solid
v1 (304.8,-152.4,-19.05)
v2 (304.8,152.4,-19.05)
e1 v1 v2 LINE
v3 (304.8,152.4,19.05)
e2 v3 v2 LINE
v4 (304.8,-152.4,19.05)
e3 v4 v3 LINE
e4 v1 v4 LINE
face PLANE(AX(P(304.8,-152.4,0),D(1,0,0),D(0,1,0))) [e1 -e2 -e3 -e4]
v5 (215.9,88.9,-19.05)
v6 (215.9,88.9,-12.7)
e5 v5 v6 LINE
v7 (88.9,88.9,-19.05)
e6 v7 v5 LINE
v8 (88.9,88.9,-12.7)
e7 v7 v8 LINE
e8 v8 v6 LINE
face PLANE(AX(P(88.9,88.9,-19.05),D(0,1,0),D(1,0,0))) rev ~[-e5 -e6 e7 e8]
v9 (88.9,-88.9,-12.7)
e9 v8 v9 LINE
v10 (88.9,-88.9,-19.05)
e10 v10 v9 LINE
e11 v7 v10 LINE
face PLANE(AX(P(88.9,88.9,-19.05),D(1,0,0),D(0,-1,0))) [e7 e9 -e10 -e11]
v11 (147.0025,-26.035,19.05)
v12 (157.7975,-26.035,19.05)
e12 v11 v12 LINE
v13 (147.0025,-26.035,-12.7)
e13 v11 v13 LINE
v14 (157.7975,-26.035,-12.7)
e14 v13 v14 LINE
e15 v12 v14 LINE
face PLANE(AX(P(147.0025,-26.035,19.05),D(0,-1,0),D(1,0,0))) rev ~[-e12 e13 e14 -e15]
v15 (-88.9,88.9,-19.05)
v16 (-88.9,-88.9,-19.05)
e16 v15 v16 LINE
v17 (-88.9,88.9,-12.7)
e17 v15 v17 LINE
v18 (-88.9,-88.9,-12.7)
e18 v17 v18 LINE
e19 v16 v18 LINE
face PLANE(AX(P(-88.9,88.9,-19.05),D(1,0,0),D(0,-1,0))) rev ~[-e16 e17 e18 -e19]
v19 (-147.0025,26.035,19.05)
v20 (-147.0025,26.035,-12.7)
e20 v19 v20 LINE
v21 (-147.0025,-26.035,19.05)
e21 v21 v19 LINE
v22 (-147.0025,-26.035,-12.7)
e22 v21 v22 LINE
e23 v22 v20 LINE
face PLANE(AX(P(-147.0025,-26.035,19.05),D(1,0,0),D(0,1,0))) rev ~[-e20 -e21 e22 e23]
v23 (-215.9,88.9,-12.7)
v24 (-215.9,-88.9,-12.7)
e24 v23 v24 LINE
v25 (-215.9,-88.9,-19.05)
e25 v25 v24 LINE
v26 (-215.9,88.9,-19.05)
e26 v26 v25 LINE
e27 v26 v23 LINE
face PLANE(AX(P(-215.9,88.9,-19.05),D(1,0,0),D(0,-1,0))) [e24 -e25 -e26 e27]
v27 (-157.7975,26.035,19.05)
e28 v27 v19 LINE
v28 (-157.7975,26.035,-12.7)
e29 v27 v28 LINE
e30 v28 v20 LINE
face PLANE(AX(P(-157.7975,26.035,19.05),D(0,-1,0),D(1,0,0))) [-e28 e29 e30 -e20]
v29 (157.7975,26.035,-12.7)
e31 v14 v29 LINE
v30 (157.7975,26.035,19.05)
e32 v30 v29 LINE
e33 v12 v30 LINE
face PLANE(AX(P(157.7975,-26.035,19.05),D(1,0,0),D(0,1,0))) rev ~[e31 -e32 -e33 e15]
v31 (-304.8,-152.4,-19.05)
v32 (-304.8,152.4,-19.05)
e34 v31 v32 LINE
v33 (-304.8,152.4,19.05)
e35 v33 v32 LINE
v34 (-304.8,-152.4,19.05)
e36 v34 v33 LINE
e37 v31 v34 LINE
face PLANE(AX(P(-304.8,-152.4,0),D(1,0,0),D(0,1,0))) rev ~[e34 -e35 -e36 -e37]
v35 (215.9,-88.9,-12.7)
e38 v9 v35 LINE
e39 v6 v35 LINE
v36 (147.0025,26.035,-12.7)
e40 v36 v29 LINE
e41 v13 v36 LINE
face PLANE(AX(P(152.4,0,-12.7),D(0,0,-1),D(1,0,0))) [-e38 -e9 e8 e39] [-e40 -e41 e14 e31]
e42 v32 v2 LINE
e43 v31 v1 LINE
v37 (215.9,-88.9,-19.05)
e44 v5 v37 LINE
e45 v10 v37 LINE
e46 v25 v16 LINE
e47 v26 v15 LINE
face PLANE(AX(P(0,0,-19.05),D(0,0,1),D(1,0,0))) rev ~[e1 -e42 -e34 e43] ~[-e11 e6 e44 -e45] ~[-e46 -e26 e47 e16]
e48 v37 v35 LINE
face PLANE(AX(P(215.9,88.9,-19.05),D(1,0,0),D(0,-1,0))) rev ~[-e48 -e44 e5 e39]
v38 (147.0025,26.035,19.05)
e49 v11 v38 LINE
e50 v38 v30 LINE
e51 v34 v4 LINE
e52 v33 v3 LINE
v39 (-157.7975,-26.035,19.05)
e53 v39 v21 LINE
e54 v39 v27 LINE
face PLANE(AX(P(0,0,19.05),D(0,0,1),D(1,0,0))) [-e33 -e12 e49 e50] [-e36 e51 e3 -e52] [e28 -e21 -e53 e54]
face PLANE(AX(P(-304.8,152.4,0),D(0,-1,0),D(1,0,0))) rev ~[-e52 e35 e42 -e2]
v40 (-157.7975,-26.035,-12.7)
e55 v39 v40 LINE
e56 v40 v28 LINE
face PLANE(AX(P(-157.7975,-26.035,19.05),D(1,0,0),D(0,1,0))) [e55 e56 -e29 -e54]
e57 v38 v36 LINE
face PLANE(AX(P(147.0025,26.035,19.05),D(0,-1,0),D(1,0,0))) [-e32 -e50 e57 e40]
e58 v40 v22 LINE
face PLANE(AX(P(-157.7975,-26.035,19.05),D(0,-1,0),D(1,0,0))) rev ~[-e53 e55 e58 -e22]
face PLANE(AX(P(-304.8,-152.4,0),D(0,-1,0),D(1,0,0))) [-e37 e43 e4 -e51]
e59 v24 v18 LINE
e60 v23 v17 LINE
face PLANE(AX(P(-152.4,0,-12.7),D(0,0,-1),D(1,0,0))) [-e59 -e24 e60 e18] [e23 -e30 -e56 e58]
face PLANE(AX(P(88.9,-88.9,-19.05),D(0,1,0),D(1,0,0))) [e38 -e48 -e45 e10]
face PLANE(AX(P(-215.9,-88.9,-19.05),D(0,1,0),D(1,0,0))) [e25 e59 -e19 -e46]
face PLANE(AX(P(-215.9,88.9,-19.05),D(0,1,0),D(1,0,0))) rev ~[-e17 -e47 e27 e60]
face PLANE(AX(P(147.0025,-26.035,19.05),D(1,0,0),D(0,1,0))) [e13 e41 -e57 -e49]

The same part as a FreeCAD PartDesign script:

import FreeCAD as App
import Part
import Sketcher
Q = App.Units.Quantity

doc = App.newDocument("Part")
params = doc.addObject("Spreadsheet::Sheet", "Params")
for row, (alias, value) in enumerate([
    ("sketch1_width", "24 in"),
    ("sketch1_height", "12 in"),
    ("pad1_length", "1.5 in"),
    ("sketch2_height", "2.05 in"),
    ("sketch2_width", "0.425 in"),
    ("sketch3_width", "5 in"),
    ("sketch3_height", "7 in"),
    ("pocket2_length", "0.25 in"),
], start=1):
    params.set(f"A{row}", alias)
    params.set(f"B{row}", "=" + value)
    params.setAlias(f"B{row}", alias)

body = doc.addObject("PartDesign::Body", "Body")

# Sketch on XY plane
sketch1 = doc.addObject("Sketcher::SketchObject", "Sketch")
body.addObject(sketch1)
sketch1.AttachmentSupport = (doc.XY_Plane, [""])
sketch1.MapMode = "FlatFace"
sketch1.addGeometry(Part.LineSegment(App.Vector(-305, 152, 0), App.Vector(-305, -152, 0)), False)
sketch1.addGeometry(Part.LineSegment(App.Vector(-305, -152, 0), App.Vector(305, -152, 0)), False)
sketch1.addGeometry(Part.LineSegment(App.Vector(305, -152, 0), App.Vector(305, 152, 0)), False)
sketch1.addGeometry(Part.LineSegment(App.Vector(305, 152, 0), App.Vector(-305, 152, 0)), False)
sketch1.addConstraint(Sketcher.Constraint("Coincident", 0, 2, 1, 1))
sketch1.addConstraint(Sketcher.Constraint("Coincident", 1, 2, 2, 1))
sketch1.addConstraint(Sketcher.Constraint("Coincident", 2, 2, 3, 1))
sketch1.addConstraint(Sketcher.Constraint("Coincident", 3, 2, 0, 1))
sketch1.addConstraint(Sketcher.Constraint("Vertical", 0))
sketch1.addConstraint(Sketcher.Constraint("Horizontal", 1))
sketch1.addConstraint(Sketcher.Constraint("Vertical", 2))
sketch1.addConstraint(Sketcher.Constraint("Horizontal", 3))
sketch1.addConstraint(Sketcher.Constraint("Symmetric", 0, 2, 2, 2, -1, 1))
sketch1.addConstraint(Sketcher.Constraint("DistanceX", 1, 1, 1, 2, Q("24 in")))
sketch1.addConstraint(Sketcher.Constraint("DistanceY", 0, 2, 0, 1, Q("12 in")))
sketch1.setExpression("Constraints[9]", "Params.sketch1_width")
sketch1.setExpression("Constraints[10]", "Params.sketch1_height")
pad1 = doc.addObject("PartDesign::Pad", "Pad")
body.addObject(pad1)
pad1.Profile = sketch1
pad1.setExpression("Length", "Params.pad1_length")
pad1.Midplane = True

# Sketch on XY plane
sketch2 = doc.addObject("Sketcher::SketchObject", "Sketch001")
body.addObject(sketch2)
sketch2.AttachmentSupport = (doc.XY_Plane, [""])
sketch2.MapMode = "FlatFace"
sketch2.AttachmentOffset = App.Placement(App.Vector(0, 0, 0.75 * 25.4), App.Rotation())
sketch2.addGeometry(Part.LineSegment(App.Vector(-158, 26, 0), App.Vector(-158, -26, 0)), False)
sketch2.addGeometry(Part.LineSegment(App.Vector(-158, -26, 0), App.Vector(-147, -26, 0)), False)
sketch2.addGeometry(Part.LineSegment(App.Vector(-147, -26, 0), App.Vector(-147, 26, 0)), False)
sketch2.addGeometry(Part.LineSegment(App.Vector(-147, 26, 0), App.Vector(-158, 26, 0)), False)
sketch2.addGeometry(Part.LineSegment(App.Vector(147, 26, 0), App.Vector(147, -26, 0)), False)
sketch2.addGeometry(Part.LineSegment(App.Vector(147, -26, 0), App.Vector(158, -26, 0)), False)
sketch2.addGeometry(Part.LineSegment(App.Vector(158, -26, 0), App.Vector(158, 26, 0)), False)
sketch2.addGeometry(Part.LineSegment(App.Vector(158, 26, 0), App.Vector(147, 26, 0)), False)
sketch2.addConstraint(Sketcher.Constraint("Coincident", 0, 2, 1, 1))
sketch2.addConstraint(Sketcher.Constraint("Coincident", 1, 2, 2, 1))
sketch2.addConstraint(Sketcher.Constraint("Coincident", 2, 2, 3, 1))
sketch2.addConstraint(Sketcher.Constraint("Coincident", 3, 2, 0, 1))
sketch2.addConstraint(Sketcher.Constraint("Coincident", 4, 2, 5, 1))
sketch2.addConstraint(Sketcher.Constraint("Coincident", 5, 2, 6, 1))
sketch2.addConstraint(Sketcher.Constraint("Coincident", 6, 2, 7, 1))
sketch2.addConstraint(Sketcher.Constraint("Coincident", 7, 2, 4, 1))
sketch2.addConstraint(Sketcher.Constraint("Vertical", 0))
sketch2.addConstraint(Sketcher.Constraint("Horizontal", 1))
sketch2.addConstraint(Sketcher.Constraint("Vertical", 2))
sketch2.addConstraint(Sketcher.Constraint("Horizontal", 3))
sketch2.addConstraint(Sketcher.Constraint("Vertical", 4))
sketch2.addConstraint(Sketcher.Constraint("Horizontal", 5))
sketch2.addConstraint(Sketcher.Constraint("Vertical", 6))
sketch2.addConstraint(Sketcher.Constraint("Horizontal", 7))
sketch2.addConstraint(Sketcher.Constraint("Symmetric", 2, 2, 4, 2, -1, 1))
sketch2.addConstraint(Sketcher.Constraint("Symmetric", 0, 2, 6, 2, -1, 1))
sketch2.addConstraint(Sketcher.Constraint("Horizontal", 1, 2, 4, 2))
sketch2.addConstraint(Sketcher.Constraint("DistanceX", 0, 2, 4, 2, Q("12 in")))
sketch2.addConstraint(Sketcher.Constraint("DistanceY", 0, 2, 0, 1, Q("2.05 in")))
sketch2.addConstraint(Sketcher.Constraint("DistanceX", 1, 1, 1, 2, Q("0.425 in")))
sketch2.setExpression("Constraints[20]", "Params.sketch2_height")
sketch2.setExpression("Constraints[21]", "Params.sketch2_width")
pocket1 = doc.addObject("PartDesign::Pocket", "Pocket")
body.addObject(pocket1)
pocket1.Profile = sketch2
pocket1.Type = "ThroughAll"

# Sketch on XY plane
sketch3 = doc.addObject("Sketcher::SketchObject", "Sketch002")
body.addObject(sketch3)
sketch3.AttachmentSupport = (doc.XY_Plane, [""])
sketch3.MapMode = "FlatFace"
sketch3.AttachmentOffset = App.Placement(App.Vector(0, 0, -0.75 * 25.4), App.Rotation())
sketch3.addGeometry(Part.LineSegment(App.Vector(-216, -89, 0), App.Vector(-216, 89, 0)), False)
sketch3.addGeometry(Part.LineSegment(App.Vector(-216, 89, 0), App.Vector(-89, 89, 0)), False)
sketch3.addGeometry(Part.LineSegment(App.Vector(-89, 89, 0), App.Vector(-89, -89, 0)), False)
sketch3.addGeometry(Part.LineSegment(App.Vector(-89, -89, 0), App.Vector(-216, -89, 0)), False)
sketch3.addGeometry(Part.LineSegment(App.Vector(89, -89, 0), App.Vector(89, 89, 0)), False)
sketch3.addGeometry(Part.LineSegment(App.Vector(89, 89, 0), App.Vector(216, 89, 0)), False)
sketch3.addGeometry(Part.LineSegment(App.Vector(216, 89, 0), App.Vector(216, -89, 0)), False)
sketch3.addGeometry(Part.LineSegment(App.Vector(216, -89, 0), App.Vector(89, -89, 0)), False)
sketch3.addConstraint(Sketcher.Constraint("Coincident", 0, 2, 1, 1))
sketch3.addConstraint(Sketcher.Constraint("Coincident", 1, 2, 2, 1))
sketch3.addConstraint(Sketcher.Constraint("Coincident", 2, 2, 3, 1))
sketch3.addConstraint(Sketcher.Constraint("Coincident", 3, 2, 0, 1))
sketch3.addConstraint(Sketcher.Constraint("Coincident", 4, 2, 5, 1))
sketch3.addConstraint(Sketcher.Constraint("Coincident", 5, 2, 6, 1))
sketch3.addConstraint(Sketcher.Constraint("Coincident", 6, 2, 7, 1))
sketch3.addConstraint(Sketcher.Constraint("Coincident", 7, 2, 4, 1))
sketch3.addConstraint(Sketcher.Constraint("Vertical", 0))
sketch3.addConstraint(Sketcher.Constraint("Horizontal", 1))
sketch3.addConstraint(Sketcher.Constraint("Vertical", 2))
sketch3.addConstraint(Sketcher.Constraint("Horizontal", 3))
sketch3.addConstraint(Sketcher.Constraint("Vertical", 4))
sketch3.addConstraint(Sketcher.Constraint("Horizontal", 5))
sketch3.addConstraint(Sketcher.Constraint("Vertical", 6))
sketch3.addConstraint(Sketcher.Constraint("Horizontal", 7))
sketch3.addConstraint(Sketcher.Constraint("Symmetric", 2, 2, 4, 2, -1, 1))
sketch3.addConstraint(Sketcher.Constraint("Symmetric", 0, 2, 6, 2, -1, 1))
sketch3.addConstraint(Sketcher.Constraint("Horizontal", 1, 2, 4, 2))
sketch3.addConstraint(Sketcher.Constraint("DistanceX", 1, 1, 1, 2, Q("5 in")))
sketch3.addConstraint(Sketcher.Constraint("DistanceY", 0, 1, 0, 2, Q("7 in")))
sketch3.addConstraint(Sketcher.Constraint("DistanceX", 1, 2, 4, 2, Q("7 in")))
sketch3.setExpression("Constraints[19]", "Params.sketch3_width")
sketch3.setExpression("Constraints[20]", "Params.sketch3_height")
pocket2 = doc.addObject("PartDesign::Pocket", "Pocket001")
body.addObject(pocket2)
pocket2.Profile = sketch3
pocket2.setExpression("Length", "Params.pocket2_length")
pocket2.Reversed = True

doc.recompute()
